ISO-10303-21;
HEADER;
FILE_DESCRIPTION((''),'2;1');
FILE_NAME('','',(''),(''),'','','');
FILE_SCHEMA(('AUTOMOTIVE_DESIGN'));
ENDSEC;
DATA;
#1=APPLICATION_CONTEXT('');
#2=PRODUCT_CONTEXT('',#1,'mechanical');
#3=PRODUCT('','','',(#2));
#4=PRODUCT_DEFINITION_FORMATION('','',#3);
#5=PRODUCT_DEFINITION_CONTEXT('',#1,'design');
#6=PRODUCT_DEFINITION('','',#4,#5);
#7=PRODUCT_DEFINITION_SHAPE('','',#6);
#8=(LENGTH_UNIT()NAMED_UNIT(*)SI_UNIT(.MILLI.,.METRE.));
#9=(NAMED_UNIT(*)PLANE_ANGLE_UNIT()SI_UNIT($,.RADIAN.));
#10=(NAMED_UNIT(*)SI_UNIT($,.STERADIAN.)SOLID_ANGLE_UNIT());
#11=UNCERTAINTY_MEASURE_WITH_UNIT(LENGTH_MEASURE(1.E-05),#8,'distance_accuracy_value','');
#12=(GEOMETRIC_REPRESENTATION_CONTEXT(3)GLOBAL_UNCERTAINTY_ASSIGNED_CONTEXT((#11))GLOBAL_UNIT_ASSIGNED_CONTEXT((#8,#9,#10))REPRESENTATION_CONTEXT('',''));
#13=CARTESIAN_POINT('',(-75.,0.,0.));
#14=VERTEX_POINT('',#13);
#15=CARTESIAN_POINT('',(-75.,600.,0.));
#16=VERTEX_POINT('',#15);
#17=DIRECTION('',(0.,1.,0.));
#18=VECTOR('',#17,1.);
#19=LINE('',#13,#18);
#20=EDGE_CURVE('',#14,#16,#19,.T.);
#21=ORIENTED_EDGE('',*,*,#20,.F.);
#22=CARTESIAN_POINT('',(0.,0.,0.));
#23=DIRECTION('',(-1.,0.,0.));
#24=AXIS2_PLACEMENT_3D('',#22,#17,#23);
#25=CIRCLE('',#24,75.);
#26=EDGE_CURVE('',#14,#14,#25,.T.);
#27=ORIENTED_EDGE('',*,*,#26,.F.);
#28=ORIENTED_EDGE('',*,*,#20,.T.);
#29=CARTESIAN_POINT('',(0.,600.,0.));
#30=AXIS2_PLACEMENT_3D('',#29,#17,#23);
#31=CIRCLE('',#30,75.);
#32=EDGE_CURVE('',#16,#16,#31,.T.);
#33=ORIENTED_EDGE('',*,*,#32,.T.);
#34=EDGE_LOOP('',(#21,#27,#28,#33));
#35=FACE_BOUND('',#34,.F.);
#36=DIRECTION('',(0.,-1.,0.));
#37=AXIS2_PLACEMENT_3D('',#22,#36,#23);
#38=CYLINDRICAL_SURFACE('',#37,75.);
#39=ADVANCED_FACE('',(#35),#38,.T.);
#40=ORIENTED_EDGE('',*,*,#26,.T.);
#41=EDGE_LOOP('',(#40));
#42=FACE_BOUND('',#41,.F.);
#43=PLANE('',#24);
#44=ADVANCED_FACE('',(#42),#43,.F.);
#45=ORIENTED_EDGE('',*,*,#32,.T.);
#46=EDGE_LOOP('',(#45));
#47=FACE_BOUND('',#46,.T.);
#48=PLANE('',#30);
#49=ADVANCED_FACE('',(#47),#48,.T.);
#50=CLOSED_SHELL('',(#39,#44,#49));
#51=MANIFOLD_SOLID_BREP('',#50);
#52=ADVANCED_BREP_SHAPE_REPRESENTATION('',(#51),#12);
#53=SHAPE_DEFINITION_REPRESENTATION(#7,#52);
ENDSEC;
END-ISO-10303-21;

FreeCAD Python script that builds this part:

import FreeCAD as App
import Part
import Sketcher
from FreeCAD import Vector

doc = App.newDocument("Part")
body = doc.addObject("PartDesign::Body", "Body")

# Sketch on XZ plane
sketch1 = doc.addObject("Sketcher::SketchObject", "Sketch")
body.addObject(sketch1)
sketch1.AttachmentSupport = (doc.XZ_Plane, [""])
sketch1.MapMode = "FlatFace"
sketch1.addGeometry(Part.Circle(Vector(0, 0, 0), Vector(0, 0, 1), 75), False)
sketch1.addConstraint([
    Sketcher.Constraint("Coincident", 0, 3, -1, 1),
    Sketcher.Constraint("Diameter", 0, 150.0),
])
pad1 = doc.addObject("PartDesign::Pad", "Pad")
body.addObject(pad1)
pad1.Profile = sketch1
pad1.Length = 600
pad1.Reversed = True

doc.recompute()
